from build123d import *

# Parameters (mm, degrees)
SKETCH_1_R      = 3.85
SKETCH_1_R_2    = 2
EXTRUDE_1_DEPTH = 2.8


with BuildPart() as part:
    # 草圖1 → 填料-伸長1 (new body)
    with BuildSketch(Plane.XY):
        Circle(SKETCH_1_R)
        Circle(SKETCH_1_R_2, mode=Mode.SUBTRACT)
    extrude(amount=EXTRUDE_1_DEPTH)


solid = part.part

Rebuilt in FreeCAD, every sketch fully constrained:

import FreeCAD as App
import Part
import Sketcher

V = App.Vector

doc = App.newDocument("Part")
params = doc.addObject("Spreadsheet::Sheet", "Params")
for row, (alias, value) in enumerate([
    ("sketch1_diameter", "4 mm"),
    ("sketch1_diameter2", "7.7 mm"),
    ("pad1_length", "2.8 mm"),
], start=1):
    params.set(f"A{row}", alias)
    params.set(f"B{row}", "=" + value)
    params.setAlias(f"B{row}", alias)

body = doc.addObject("PartDesign::Body", "Body")

# Sketch on XY plane
sketch1 = body.newObject("Sketcher::SketchObject", "Sketch")
sketch1.AttachmentSupport = (doc.getObject("XY_Plane"), [""])
sketch1.MapMode = "FlatFace"
sketch1.addGeometry([
    Part.Circle(V(0, 0, 0), V(0, 0, 1), 3.9),
    Part.Circle(V(0, 0, 0), V(0, 0, 1), 2),
], False)
sketch1.addConstraint([
    Sketcher.Constraint("Coincident", 0, 3, -1, 1),
    Sketcher.Constraint("Coincident", 1, 3, -1, 1),
    Sketcher.Constraint("Diameter", 1, 4.0),
    Sketcher.Constraint("Diameter", 0, 7.7),
])
sketch1.setExpression("Constraints[2]", "Params.sketch1_diameter")
sketch1.setExpression("Constraints[3]", "Params.sketch1_diameter2")
pad1 = body.newObject("PartDesign::Pad", "Pad")
pad1.Profile = sketch1
pad1.setExpression("Length", "Params.pad1_length")

doc.recompute()
